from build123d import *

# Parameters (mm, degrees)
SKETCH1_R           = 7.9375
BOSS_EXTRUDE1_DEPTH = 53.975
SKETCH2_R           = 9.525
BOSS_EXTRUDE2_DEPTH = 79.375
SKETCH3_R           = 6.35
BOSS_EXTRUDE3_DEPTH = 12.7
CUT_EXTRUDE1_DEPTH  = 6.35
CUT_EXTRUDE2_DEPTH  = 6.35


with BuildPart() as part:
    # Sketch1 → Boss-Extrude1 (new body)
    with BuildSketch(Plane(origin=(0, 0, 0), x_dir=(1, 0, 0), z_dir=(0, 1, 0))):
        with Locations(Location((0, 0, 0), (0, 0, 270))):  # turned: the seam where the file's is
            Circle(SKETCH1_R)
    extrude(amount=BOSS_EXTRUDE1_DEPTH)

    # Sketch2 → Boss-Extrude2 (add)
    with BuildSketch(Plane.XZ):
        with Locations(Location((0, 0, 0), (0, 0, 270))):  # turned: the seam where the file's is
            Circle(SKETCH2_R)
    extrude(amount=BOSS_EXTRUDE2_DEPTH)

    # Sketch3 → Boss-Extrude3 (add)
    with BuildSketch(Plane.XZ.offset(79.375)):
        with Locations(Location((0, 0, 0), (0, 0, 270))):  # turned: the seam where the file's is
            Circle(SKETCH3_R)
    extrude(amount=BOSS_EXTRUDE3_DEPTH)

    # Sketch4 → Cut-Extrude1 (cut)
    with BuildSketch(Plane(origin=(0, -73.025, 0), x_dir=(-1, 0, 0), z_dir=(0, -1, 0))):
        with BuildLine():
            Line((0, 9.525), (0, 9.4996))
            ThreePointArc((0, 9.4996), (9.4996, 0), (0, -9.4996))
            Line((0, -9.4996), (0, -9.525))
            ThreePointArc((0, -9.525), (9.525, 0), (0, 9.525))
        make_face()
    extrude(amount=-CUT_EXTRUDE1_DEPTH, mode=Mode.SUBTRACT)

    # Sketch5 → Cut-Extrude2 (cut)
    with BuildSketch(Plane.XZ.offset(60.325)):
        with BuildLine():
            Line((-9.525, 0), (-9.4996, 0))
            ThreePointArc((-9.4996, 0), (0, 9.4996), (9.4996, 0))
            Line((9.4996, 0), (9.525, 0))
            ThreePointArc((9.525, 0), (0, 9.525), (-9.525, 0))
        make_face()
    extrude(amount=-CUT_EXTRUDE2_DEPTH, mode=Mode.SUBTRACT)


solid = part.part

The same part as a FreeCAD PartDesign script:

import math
import FreeCAD as App
import Part
import Sketcher
from FreeCAD import Vector
Q = App.Units.Quantity

doc = App.newDocument("Part")
body = doc.addObject("PartDesign::Body", "Body")

# Sketch on XZ plane
sketch1 = body.newObject("Sketcher::SketchObject", "Sketch")
sketch1.AttachmentSupport = (doc.getObject("XZ_Plane"), [""])
sketch1.MapMode = "FlatFace"
sketch1.addGeometry(Part.Circle(Vector(0, 0, 0), Vector(0, 0, 1), 8), False)
sketch1.addConstraint([
    Sketcher.Constraint("Coincident", 0, 3, -1, 1),
    Sketcher.Constraint("Diameter", 0, Q("0.625 in")),
])
pad1 = body.newObject("PartDesign::Pad", "Pad")
pad1.Profile = sketch1
pad1.Length = Q("2.125 in")
pad1.Reversed = True

# Sketch on XZ plane
sketch2 = body.newObject("Sketcher::SketchObject", "Sketch001")
sketch2.AttachmentSupport = (doc.getObject("XZ_Plane"), [""])
sketch2.MapMode = "FlatFace"
sketch2.addGeometry(Part.Circle(Vector(0, 0, 0), Vector(0, 0, 1), 10), False)
sketch2.addConstraint([
    Sketcher.Constraint("Coincident", 0, 3, -1, 1),
    Sketcher.Constraint("Diameter", 0, Q("0.75 in")),
])
pad2 = body.newObject("PartDesign::Pad", "Pad001")
pad2.Profile = sketch2
pad2.Length = Q("3.125 in")

# Sketch on XZ plane
sketch3 = body.newObject("Sketcher::SketchObject", "Sketch002")
sketch3.AttachmentSupport = (doc.getObject("XZ_Plane"), [""])
sketch3.MapMode = "FlatFace"
sketch3.AttachmentOffset = App.Placement(Vector(0, 0, 3.125 * 25.4), App.Rotation())
sketch3.addGeometry(Part.Circle(Vector(0, 0, 0), Vector(0, 0, 1), 6), False)
sketch3.addConstraint([
    Sketcher.Constraint("Coincident", 0, 3, -1, 1),
    Sketcher.Constraint("Diameter", 0, Q("0.5 in")),
])
pad3 = body.newObject("PartDesign::Pad", "Pad002")
pad3.Profile = sketch3
pad3.Length = Q("0.5 in")

# Sketch on XZ plane
sketch4 = body.newObject("Sketcher::SketchObject", "Sketch003")
sketch4.AttachmentSupport = (doc.getObject("XZ_Plane"), [""])
sketch4.MapMode = "FlatFace"
sketch4.AttachmentOffset = App.Placement(Vector(0, 0, 2.875 * 25.4), App.Rotation())
sketch4.addGeometry([
    Part.LineSegment(Vector(0, -9.525, 0), Vector(0, -9.5, 0)),
    Part.ArcOfCircle(Part.Circle(Vector(0, 0, 0), Vector(0, 0, 1), 9.5), math.radians(90), math.radians(270)),
    Part.LineSegment(Vector(0, 9.5, 0), Vector(0, 9.525, 0)),
    Part.ArcOfCircle(Part.Circle(Vector(0, 0, 0), Vector(0, 0, 1), 9.525), math.radians(90), math.radians(270)),
], False)
sketch4.addConstraint([
    Sketcher.Constraint("Coincident", 0, 2, 1, 2),
    Sketcher.Constraint("Coincident", 1, 1, 2, 1),
    Sketcher.Constraint("Coincident", 2, 2, 3, 1),
    Sketcher.Constraint("Coincident", 3, 2, 0, 1),
    Sketcher.Constraint("Vertical", 0),
    Sketcher.Constraint("Vertical", 2),
    Sketcher.Constraint("Coincident", 1, 3, -1, 1),
    Sketcher.Constraint("Coincident", 3, 3, -1, 1),
    Sketcher.Constraint("PointOnObject", 0, 2, -2),
    Sketcher.Constraint("PointOnObject", 1, 1, -2),
    Sketcher.Constraint("Radius", 1, Q("0.374 in")),
    Sketcher.Constraint("Radius", 3, Q("0.375 in")),
])
pocket1 = body.newObject("PartDesign::Pocket", "Pocket")
pocket1.Profile = sketch4
pocket1.Length = Q("0.25 in")

# Sketch on XZ plane
sketch5 = body.newObject("Sketcher::SketchObject", "Sketch004")
sketch5.AttachmentSupport = (doc.getObject("XZ_Plane"), [""])
sketch5.MapMode = "FlatFace"
sketch5.AttachmentOffset = App.Placement(Vector(0, 0, 2.375 * 25.4), App.Rotation())
sketch5.addGeometry([
    Part.LineSegment(Vector(-9.525, 0, 0), Vector(-9.5, 0, 0)),
    Part.ArcOfCircle(Part.Circle(Vector(0, 0, 0), Vector(0, 0, 1), 9.5), math.radians(0), math.radians(180)),
    Part.LineSegment(Vector(9.5, 0, 0), Vector(9.525, 0, 0)),
    Part.ArcOfCircle(Part.Circle(Vector(0, 0, 0), Vector(0, 0, 1), 9.525), math.radians(0), math.radians(180)),
], False)
sketch5.addConstraint([
    Sketcher.Constraint("Coincident", 0, 2, 1, 2),
    Sketcher.Constraint("Coincident", 1, 1, 2, 1),
    Sketcher.Constraint("Coincident", 2, 2, 3, 1),
    Sketcher.Constraint("Coincident", 3, 2, 0, 1),
    Sketcher.Constraint("Horizontal", 0),
    Sketcher.Constraint("Horizontal", 2),
    Sketcher.Constraint("Coincident", 1, 3, -1, 1),
    Sketcher.Constraint("Coincident", 3, 3, -1, 1),
    Sketcher.Constraint("PointOnObject", 0, 2, -1),
    Sketcher.Constraint("PointOnObject", 1, 1, -1),
    Sketcher.Constraint("Radius", 1, Q("0.374 in")),
    Sketcher.Constraint("Radius", 3, Q("0.375 in")),
])
pocket2 = body.newObject("PartDesign::Pocket", "Pocket001")
pocket2.Profile = sketch5
pocket2.Length = Q("0.25 in")

doc.recompute()
